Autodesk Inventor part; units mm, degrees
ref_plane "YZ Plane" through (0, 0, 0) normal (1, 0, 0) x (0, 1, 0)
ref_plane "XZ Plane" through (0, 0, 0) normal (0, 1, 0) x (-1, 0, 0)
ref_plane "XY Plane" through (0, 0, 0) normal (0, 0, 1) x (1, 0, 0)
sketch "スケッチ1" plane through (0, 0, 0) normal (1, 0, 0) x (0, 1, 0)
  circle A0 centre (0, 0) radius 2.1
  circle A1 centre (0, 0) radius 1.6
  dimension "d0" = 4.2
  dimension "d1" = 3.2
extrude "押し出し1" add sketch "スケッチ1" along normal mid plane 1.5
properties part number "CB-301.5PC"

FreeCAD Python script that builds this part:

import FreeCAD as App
import Part
import Sketcher

V = App.Vector
Q = App.Units.Quantity

doc = App.newDocument("Part")
params = doc.addObject("Spreadsheet::Sheet", "Params")
for row, (alias, value) in enumerate([
    ("sketch1_diameter", "4.2 mm"),
    ("sketch1_diameter2", "3.2 mm"),
    ("pad1_length", "1.5 mm"),
], start=1):
    params.set(f"A{row}", alias)
    params.set(f"B{row}", "=" + value)
    params.setAlias(f"B{row}", alias)

body = doc.addObject("PartDesign::Body", "Body")

# Sketch on YZ plane
sketch1 = doc.addObject("Sketcher::SketchObject", "Sketch")
body.addObject(sketch1)
sketch1.AttachmentSupport = (doc.YZ_Plane, [""])
sketch1.MapMode = "FlatFace"
sketch1.addGeometry([
    Part.Circle(V(0, 0, 0), V(0, 0, 1), 2.1),
    Part.Circle(V(0, 0, 0), V(0, 0, 1), 1.6),
], False)
sketch1.addConstraint([
    Sketcher.Constraint("Coincident", 0, 3, -1, 1),
    Sketcher.Constraint("Coincident", 1, 3, -1, 1),
    Sketcher.Constraint("Diameter", 0, Q("4.2 mm")),
    Sketcher.Constraint("Diameter", 1, Q("3.2 mm")),
])
sketch1.setExpression("Constraints[2]", "Params.sketch1_diameter")
sketch1.setExpression("Constraints[3]", "Params.sketch1_diameter2")
pad1 = doc.addObject("PartDesign::Pad", "Pad")
body.addObject(pad1)
pad1.Profile = sketch1
pad1.setExpression("Length", "Params.pad1_length")
pad1.Midplane = True

doc.recompute()
